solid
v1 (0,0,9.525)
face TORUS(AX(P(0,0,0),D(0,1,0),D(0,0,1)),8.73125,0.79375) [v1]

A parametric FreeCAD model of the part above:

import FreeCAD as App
import Part
import Sketcher
from FreeCAD import Vector
Q = App.Units.Quantity

doc = App.newDocument("Part")
body = doc.addObject("PartDesign::Body", "Body")

# Sketch on XY plane
sketch1 = body.newObject("Sketcher::SketchObject", "Sketch")
sketch1.AttachmentSupport = (doc.getObject("XY_Plane"), [""])
sketch1.MapMode = "FlatFace"
sketch1.addGeometry(Part.Circle(Vector(-8.7, 0, 0), Vector(0, 0, 1), 0.8), False)
sketch1.addConstraint(Sketcher.Constraint("PointOnObject", 0, 3, -1))
sketch1.addConstraint(Sketcher.Constraint("Diameter", 0, Q("0.0625 in")))
sketch1.addConstraint(Sketcher.Constraint("DistanceX", 0, 3, -1, 1, Q("0.34375 in")))
revolution = body.newObject("PartDesign::Revolution", "Revolution")
revolution.Profile = sketch1
revolution.ReferenceAxis = (sketch1, ["V_Axis"])
revolution.Angle = 360

doc.recompute()
